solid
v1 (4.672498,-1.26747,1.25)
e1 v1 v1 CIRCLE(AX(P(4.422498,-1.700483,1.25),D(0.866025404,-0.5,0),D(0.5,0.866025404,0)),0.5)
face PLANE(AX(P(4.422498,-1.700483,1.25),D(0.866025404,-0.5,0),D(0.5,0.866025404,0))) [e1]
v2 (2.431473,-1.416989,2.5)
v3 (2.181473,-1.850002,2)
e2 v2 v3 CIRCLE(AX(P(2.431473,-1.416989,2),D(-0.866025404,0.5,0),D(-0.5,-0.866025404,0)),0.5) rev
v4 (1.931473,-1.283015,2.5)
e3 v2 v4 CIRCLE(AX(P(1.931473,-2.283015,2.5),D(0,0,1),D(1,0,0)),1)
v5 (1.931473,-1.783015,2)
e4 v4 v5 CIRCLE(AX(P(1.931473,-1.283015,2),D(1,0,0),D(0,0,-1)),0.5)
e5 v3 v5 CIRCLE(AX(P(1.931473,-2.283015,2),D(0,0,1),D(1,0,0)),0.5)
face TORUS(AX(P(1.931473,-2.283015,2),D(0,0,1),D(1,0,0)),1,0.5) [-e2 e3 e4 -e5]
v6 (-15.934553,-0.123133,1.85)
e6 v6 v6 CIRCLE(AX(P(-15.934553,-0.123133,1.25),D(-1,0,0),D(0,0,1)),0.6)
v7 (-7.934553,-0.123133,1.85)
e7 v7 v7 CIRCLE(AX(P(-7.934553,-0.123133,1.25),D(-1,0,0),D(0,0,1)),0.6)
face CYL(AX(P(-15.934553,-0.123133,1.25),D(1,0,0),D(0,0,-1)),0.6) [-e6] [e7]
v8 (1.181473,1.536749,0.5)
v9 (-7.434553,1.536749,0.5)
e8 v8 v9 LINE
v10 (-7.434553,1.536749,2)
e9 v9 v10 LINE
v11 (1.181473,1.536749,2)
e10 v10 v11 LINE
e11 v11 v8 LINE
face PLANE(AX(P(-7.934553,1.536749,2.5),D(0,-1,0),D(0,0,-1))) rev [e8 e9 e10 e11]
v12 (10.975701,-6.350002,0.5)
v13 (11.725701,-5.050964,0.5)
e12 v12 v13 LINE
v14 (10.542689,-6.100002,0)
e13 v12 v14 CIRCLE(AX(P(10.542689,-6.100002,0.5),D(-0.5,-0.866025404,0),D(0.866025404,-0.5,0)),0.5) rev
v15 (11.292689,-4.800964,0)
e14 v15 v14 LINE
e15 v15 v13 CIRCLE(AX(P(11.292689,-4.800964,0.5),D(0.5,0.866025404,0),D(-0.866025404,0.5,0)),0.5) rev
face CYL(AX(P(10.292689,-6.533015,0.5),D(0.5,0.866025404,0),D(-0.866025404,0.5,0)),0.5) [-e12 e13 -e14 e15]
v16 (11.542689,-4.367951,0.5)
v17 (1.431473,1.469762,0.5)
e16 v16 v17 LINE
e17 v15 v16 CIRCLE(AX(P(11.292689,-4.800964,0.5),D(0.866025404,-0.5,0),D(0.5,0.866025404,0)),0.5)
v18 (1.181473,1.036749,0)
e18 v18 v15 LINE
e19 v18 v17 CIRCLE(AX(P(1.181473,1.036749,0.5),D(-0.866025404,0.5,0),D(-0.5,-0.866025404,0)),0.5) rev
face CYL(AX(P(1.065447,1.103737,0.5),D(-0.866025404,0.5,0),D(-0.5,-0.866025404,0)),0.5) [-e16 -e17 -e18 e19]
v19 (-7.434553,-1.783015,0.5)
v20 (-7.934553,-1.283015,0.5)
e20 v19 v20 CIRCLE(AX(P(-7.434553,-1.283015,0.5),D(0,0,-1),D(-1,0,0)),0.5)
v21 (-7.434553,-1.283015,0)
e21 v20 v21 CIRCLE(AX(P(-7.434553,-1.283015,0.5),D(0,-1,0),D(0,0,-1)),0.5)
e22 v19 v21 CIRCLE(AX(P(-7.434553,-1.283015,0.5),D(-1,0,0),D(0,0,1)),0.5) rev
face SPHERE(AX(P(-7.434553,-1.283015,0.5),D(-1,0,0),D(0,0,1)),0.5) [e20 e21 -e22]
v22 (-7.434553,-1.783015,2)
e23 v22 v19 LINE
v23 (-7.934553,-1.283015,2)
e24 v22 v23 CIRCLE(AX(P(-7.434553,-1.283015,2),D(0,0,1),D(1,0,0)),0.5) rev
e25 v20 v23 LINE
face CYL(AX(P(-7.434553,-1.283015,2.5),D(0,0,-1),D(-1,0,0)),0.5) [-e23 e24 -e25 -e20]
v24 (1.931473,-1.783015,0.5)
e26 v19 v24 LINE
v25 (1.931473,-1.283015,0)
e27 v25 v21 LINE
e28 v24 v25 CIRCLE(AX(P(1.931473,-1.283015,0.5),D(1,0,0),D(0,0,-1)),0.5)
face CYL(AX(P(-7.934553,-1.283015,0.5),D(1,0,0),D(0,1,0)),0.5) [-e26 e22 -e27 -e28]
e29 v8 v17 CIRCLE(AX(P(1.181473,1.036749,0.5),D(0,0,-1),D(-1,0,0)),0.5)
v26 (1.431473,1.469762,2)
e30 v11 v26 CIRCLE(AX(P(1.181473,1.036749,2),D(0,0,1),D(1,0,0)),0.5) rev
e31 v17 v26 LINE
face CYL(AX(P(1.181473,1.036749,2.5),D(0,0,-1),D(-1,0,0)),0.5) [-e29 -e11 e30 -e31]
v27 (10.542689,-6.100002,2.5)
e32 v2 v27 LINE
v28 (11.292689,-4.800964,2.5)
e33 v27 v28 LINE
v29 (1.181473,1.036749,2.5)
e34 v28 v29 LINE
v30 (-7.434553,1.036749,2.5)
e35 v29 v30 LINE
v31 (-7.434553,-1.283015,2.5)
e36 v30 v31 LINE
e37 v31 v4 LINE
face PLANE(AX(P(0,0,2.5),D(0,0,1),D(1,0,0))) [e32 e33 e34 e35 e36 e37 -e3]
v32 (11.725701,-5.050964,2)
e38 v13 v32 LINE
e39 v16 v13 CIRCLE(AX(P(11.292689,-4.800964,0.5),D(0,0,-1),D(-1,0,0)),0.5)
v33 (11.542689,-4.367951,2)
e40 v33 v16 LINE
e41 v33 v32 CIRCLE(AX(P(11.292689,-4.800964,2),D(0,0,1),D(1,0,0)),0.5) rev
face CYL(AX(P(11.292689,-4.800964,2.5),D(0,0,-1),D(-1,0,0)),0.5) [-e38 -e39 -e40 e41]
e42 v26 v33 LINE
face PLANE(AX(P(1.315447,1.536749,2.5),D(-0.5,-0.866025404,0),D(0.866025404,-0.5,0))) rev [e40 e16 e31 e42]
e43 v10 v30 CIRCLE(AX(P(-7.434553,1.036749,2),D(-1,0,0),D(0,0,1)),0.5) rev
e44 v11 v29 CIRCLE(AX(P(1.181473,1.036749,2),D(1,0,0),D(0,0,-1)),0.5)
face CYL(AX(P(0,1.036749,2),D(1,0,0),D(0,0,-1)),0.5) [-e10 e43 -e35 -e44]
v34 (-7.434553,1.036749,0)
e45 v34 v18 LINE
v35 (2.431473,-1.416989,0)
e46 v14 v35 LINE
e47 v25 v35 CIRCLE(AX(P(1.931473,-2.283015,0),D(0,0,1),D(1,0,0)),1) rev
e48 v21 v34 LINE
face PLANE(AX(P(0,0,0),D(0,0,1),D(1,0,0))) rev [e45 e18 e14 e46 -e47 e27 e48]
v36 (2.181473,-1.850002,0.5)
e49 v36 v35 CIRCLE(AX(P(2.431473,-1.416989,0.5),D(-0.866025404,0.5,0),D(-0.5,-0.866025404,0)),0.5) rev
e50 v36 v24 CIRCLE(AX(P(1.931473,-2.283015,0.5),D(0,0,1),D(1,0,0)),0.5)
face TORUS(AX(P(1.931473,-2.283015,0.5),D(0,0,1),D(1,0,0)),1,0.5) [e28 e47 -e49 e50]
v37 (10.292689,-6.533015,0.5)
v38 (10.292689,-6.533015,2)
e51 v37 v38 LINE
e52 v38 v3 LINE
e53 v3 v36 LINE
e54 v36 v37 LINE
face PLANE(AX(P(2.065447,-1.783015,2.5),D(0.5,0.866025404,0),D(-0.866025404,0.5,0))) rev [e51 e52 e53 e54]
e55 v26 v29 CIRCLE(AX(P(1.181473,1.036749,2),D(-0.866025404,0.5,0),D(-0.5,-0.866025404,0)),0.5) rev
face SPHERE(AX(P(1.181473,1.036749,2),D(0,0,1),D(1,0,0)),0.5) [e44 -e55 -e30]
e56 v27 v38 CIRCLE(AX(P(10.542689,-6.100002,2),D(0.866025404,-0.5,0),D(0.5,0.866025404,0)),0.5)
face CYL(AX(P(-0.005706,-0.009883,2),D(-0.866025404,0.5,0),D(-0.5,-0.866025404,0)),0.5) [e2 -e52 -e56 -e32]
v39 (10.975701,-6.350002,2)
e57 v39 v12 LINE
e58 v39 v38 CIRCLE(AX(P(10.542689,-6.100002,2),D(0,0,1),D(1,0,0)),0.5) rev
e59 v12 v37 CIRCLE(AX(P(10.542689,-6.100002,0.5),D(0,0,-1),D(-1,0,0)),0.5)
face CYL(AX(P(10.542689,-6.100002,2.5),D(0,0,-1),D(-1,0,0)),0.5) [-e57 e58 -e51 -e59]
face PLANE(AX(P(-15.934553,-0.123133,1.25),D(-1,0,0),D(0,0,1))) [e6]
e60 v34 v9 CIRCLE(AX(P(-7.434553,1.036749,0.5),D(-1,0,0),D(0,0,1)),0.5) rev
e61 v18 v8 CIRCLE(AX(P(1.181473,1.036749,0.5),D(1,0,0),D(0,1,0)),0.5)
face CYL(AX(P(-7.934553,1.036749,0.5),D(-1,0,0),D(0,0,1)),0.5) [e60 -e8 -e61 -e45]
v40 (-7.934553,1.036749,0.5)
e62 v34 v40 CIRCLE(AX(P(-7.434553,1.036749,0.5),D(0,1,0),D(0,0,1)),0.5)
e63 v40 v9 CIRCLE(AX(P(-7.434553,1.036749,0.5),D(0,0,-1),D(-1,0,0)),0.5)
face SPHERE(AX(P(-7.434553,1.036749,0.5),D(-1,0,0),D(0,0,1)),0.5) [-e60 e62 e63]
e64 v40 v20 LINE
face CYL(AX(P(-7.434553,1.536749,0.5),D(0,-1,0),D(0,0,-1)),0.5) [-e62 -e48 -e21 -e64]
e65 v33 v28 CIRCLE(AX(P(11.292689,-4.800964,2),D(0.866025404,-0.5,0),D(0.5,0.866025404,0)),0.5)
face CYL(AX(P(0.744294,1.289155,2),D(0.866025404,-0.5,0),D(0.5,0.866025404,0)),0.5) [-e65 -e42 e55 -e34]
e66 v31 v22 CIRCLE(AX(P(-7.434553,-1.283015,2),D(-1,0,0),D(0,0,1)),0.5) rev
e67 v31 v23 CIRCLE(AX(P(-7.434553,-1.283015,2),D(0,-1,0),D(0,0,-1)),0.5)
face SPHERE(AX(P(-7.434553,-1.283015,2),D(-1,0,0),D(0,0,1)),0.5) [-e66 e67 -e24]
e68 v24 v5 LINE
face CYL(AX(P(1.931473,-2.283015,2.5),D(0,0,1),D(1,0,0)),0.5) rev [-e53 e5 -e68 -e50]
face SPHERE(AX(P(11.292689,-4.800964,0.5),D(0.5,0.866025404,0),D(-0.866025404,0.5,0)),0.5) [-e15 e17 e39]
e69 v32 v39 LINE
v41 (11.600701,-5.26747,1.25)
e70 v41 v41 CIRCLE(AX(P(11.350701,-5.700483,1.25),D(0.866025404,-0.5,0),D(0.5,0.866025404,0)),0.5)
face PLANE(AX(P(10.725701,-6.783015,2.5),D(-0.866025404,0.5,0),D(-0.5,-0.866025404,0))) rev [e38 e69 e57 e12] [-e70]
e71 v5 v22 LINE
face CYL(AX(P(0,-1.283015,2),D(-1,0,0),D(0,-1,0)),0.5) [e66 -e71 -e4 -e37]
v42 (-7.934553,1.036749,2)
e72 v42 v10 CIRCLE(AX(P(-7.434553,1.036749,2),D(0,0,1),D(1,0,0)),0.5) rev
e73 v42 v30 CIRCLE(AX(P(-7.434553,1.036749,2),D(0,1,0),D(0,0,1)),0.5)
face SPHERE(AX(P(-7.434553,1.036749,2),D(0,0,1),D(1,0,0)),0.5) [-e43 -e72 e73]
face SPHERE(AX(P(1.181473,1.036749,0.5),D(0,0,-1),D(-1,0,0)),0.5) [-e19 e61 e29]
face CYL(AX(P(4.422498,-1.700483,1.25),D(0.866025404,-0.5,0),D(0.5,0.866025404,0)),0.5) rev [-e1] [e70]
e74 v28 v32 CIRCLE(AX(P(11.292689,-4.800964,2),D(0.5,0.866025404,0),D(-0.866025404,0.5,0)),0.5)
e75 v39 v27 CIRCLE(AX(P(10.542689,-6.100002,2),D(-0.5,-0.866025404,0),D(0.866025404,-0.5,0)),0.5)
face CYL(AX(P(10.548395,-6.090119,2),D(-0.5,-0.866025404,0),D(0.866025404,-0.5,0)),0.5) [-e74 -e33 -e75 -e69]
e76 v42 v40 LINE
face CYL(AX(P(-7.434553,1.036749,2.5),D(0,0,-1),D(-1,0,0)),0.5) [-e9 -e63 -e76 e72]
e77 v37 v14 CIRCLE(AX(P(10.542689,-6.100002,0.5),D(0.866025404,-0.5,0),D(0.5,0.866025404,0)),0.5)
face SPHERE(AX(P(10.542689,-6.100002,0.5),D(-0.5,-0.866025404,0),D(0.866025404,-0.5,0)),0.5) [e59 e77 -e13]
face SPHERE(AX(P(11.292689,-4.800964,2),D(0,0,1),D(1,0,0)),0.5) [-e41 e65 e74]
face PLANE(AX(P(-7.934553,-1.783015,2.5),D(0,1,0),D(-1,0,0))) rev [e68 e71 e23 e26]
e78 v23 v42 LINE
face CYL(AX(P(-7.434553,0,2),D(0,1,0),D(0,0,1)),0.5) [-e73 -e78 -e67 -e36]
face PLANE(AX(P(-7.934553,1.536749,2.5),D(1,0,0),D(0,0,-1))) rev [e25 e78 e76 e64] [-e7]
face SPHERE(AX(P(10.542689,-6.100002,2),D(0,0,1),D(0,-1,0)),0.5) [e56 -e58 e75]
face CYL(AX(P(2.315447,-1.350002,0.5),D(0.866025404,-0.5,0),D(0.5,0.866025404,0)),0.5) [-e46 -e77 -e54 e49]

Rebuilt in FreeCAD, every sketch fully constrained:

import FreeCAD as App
import Part
import Sketcher
Q = App.Units.Quantity


def edges_at(feature, points):
    """Names of the edges that pass closest to the given points."""
    edges = feature.Shape.Edges
    near = lambda p: min(range(len(edges)), key=lambda i: edges[i].distToShape(Part.Vertex(*p))[0])
    return sorted({f"Edge{near(p) + 1}" for p in points})

doc = App.newDocument("Part")
params = doc.addObject("Spreadsheet::Sheet", "Params")
for row, (alias, value) in enumerate([
    ("sketch1_width", "10 mm"),
    ("sketch1_length", "10 mm"),
    ("sketch1_length2", "2.5 mm"),
    ("sketch1_width2", "9.25 mm"),
    ("pad1_length", "2.5 mm"),
    ("sketch2_diameter", "1 mm"),
    ("pocket1_length", "8 mm"),
    ("sketch3_diameter", "1.2 mm"),
    ("pad2_length", "8 mm"),
    ("fillet_radius", "0.5 mm"),
], start=1):
    params.set(f"A{row}", alias)
    params.set(f"B{row}", "=" + value)
    params.setAlias(f"B{row}", alias)

body = doc.addObject("PartDesign::Body", "Body")

# Sketch on XY plane
sketch1 = body.newObject("Sketcher::SketchObject", "Sketch")
sketch1.AttachmentSupport = (doc.getObject("XY_Plane"), [""])
sketch1.MapMode = "FlatFace"
sketch1.addGeometry(Part.LineSegment(App.Vector(12, -4.6, 0), App.Vector(1.3, 1.5, 0)), False)
sketch1.addGeometry(Part.LineSegment(App.Vector(1.3, 1.5, 0), App.Vector(-7.9, 1.5, 0)), False)
sketch1.addGeometry(Part.LineSegment(App.Vector(-7.9, 1.5, 0), App.Vector(-7.9, -1.8, 0)), False)
sketch1.addGeometry(Part.LineSegment(App.Vector(-7.9, -1.8, 0), App.Vector(2.1, -1.8, 0)), False)
sketch1.addGeometry(Part.LineSegment(App.Vector(2.1, -1.8, 0), App.Vector(10.7, -6.8, 0)), False)
sketch1.addGeometry(Part.LineSegment(App.Vector(10.7, -6.8, 0), App.Vector(12, -4.6, 0)), False)
sketch1.addConstraint(Sketcher.Constraint("Coincident", 0, 2, 1, 1))
sketch1.addConstraint(Sketcher.Constraint("Coincident", 1, 2, 2, 1))
sketch1.addConstraint(Sketcher.Constraint("Coincident", 2, 2, 3, 1))
sketch1.addConstraint(Sketcher.Constraint("Coincident", 3, 2, 4, 1))
sketch1.addConstraint(Sketcher.Constraint("Coincident", 4, 2, 5, 1))
sketch1.addConstraint(Sketcher.Constraint("Coincident", 5, 2, 0, 1))
sketch1.addConstraint(Sketcher.Constraint("Horizontal", 1))
sketch1.addConstraint(Sketcher.Constraint("Vertical", 2))
sketch1.addConstraint(Sketcher.Constraint("Horizontal", 3))
sketch1.addConstraint(Sketcher.Constraint("Parallel", 0, 4))
sketch1.addConstraint(Sketcher.Constraint("Perpendicular", 4, 5))
sketch1.addConstraint(Sketcher.Constraint("DistanceX", 3, 1, 3, 2, Q("10 mm")))
sketch1.addConstraint(Sketcher.Constraint("Angle", 0, Q("150 deg")))
sketch1.addConstraint(Sketcher.Constraint("Distance", 4, Q("10 mm")))
sketch1.addConstraint(Sketcher.Constraint("Distance", 5, Q("2.5 mm")))
sketch1.addConstraint(Sketcher.Constraint("DistanceX", 1, 2, 1, 1, Q("9.25 mm")))
sketch1.addConstraint(Sketcher.Constraint("DistanceX", -1, 1, 4, 2, Q("10.725701 mm")))
sketch1.addConstraint(Sketcher.Constraint("DistanceY", -1, 1, 0, 2, Q("1.536749 mm")))
sketch1.setExpression("Constraints[11]", "Params.sketch1_width")
sketch1.setExpression("Constraints[13]", "Params.sketch1_length")
sketch1.setExpression("Constraints[14]", "Params.sketch1_length2")
sketch1.setExpression("Constraints[15]", "Params.sketch1_width2")
pad1 = body.newObject("PartDesign::Pad", "Pad")
pad1.Profile = sketch1
pad1.setExpression("Length", "Params.pad1_length")

# Sketch on an angled plane
sketch2 = body.newObject("Sketcher::SketchObject", "Sketch001")
sketch2.Placement = App.Placement(App.Vector(10.981408, -6.340119, 0), App.Rotation(App.Vector(0, 0, -1), App.Vector(0.5, 0.866025404, 0), App.Vector(0.866025404, -0.5, 0), "ZXY"))
sketch2.addGeometry(Part.Circle(App.Vector(-1.2, 0.7, 0), App.Vector(0, 0, 1), 0.5), False)
sketch2.addConstraint(Sketcher.Constraint("Diameter", 0, Q("1 mm")))
sketch2.addConstraint(Sketcher.Constraint("DistanceX", 0, 3, -1, 1, Q("1.25 mm")))
sketch2.addConstraint(Sketcher.Constraint("DistanceY", -1, 1, 0, 3, Q("0.738588 mm")))
sketch2.setExpression("Constraints[0]", "Params.sketch2_diameter")
pocket1 = body.newObject("PartDesign::Pocket", "Pocket")
pocket1.Profile = sketch2
pocket1.setExpression("Length", "Params.pocket1_length")

# Sketch on YZ plane
sketch3 = body.newObject("Sketcher::SketchObject", "Sketch002")
sketch3.AttachmentSupport = (doc.getObject("YZ_Plane"), [""])
sketch3.MapMode = "FlatFace"
sketch3.AttachmentOffset = App.Placement(App.Vector(0, 0, -7.934553), App.Rotation())
sketch3.addGeometry(Part.Circle(App.Vector(-0.1, 1.2, 0), App.Vector(0, 0, 1), 0.6), False)
sketch3.addConstraint(Sketcher.Constraint("Diameter", 0, Q("1.2 mm")))
sketch3.addConstraint(Sketcher.Constraint("DistanceY", -1, 1, 0, 3, Q("1.25 mm")))
sketch3.addConstraint(Sketcher.Constraint("DistanceX", 0, 3, -1, 1, Q("0.123133 mm")))
sketch3.setExpression("Constraints[0]", "Params.sketch3_diameter")
pad2 = body.newObject("PartDesign::Pad", "Pad001")
pad2.Profile = sketch3
pad2.setExpression("Length", "Params.pad2_length")
pad2.Reversed = True
doc.recompute()

fillet = body.newObject("PartDesign::Fillet", "Fillet")
fillet.Base = (pad2, edges_at(pad2, [
    (2.065, -1.783, 1.25),
    (-7.935, -1.783, 1.25),
    (-7.935, 1.537, 1.25),
    (1.315, 1.537, 1.25),
    (11.976, -4.618, 1.25),
    (10.726, -6.783, 1.25),
    (6.646, -1.541, 2.5),
    (-3.31, 1.537, 2.5),
    (-7.935, -0.123, 2.5),
    (-2.935, -1.783, 2.5),
    (6.396, -4.283, 2.5),
    (-2.935, -1.783, 0),
    (-7.935, -0.123, 0),
    (-3.31, 1.537, 0),
    (6.646, -1.541, 0),
    (11.351, -5.7, 0),
    (6.396, -4.283, 0),
    (11.351, -5.7, 2.5),
]))
fillet.setExpression("Radius", "Params.fillet_radius")

doc.recompute()
